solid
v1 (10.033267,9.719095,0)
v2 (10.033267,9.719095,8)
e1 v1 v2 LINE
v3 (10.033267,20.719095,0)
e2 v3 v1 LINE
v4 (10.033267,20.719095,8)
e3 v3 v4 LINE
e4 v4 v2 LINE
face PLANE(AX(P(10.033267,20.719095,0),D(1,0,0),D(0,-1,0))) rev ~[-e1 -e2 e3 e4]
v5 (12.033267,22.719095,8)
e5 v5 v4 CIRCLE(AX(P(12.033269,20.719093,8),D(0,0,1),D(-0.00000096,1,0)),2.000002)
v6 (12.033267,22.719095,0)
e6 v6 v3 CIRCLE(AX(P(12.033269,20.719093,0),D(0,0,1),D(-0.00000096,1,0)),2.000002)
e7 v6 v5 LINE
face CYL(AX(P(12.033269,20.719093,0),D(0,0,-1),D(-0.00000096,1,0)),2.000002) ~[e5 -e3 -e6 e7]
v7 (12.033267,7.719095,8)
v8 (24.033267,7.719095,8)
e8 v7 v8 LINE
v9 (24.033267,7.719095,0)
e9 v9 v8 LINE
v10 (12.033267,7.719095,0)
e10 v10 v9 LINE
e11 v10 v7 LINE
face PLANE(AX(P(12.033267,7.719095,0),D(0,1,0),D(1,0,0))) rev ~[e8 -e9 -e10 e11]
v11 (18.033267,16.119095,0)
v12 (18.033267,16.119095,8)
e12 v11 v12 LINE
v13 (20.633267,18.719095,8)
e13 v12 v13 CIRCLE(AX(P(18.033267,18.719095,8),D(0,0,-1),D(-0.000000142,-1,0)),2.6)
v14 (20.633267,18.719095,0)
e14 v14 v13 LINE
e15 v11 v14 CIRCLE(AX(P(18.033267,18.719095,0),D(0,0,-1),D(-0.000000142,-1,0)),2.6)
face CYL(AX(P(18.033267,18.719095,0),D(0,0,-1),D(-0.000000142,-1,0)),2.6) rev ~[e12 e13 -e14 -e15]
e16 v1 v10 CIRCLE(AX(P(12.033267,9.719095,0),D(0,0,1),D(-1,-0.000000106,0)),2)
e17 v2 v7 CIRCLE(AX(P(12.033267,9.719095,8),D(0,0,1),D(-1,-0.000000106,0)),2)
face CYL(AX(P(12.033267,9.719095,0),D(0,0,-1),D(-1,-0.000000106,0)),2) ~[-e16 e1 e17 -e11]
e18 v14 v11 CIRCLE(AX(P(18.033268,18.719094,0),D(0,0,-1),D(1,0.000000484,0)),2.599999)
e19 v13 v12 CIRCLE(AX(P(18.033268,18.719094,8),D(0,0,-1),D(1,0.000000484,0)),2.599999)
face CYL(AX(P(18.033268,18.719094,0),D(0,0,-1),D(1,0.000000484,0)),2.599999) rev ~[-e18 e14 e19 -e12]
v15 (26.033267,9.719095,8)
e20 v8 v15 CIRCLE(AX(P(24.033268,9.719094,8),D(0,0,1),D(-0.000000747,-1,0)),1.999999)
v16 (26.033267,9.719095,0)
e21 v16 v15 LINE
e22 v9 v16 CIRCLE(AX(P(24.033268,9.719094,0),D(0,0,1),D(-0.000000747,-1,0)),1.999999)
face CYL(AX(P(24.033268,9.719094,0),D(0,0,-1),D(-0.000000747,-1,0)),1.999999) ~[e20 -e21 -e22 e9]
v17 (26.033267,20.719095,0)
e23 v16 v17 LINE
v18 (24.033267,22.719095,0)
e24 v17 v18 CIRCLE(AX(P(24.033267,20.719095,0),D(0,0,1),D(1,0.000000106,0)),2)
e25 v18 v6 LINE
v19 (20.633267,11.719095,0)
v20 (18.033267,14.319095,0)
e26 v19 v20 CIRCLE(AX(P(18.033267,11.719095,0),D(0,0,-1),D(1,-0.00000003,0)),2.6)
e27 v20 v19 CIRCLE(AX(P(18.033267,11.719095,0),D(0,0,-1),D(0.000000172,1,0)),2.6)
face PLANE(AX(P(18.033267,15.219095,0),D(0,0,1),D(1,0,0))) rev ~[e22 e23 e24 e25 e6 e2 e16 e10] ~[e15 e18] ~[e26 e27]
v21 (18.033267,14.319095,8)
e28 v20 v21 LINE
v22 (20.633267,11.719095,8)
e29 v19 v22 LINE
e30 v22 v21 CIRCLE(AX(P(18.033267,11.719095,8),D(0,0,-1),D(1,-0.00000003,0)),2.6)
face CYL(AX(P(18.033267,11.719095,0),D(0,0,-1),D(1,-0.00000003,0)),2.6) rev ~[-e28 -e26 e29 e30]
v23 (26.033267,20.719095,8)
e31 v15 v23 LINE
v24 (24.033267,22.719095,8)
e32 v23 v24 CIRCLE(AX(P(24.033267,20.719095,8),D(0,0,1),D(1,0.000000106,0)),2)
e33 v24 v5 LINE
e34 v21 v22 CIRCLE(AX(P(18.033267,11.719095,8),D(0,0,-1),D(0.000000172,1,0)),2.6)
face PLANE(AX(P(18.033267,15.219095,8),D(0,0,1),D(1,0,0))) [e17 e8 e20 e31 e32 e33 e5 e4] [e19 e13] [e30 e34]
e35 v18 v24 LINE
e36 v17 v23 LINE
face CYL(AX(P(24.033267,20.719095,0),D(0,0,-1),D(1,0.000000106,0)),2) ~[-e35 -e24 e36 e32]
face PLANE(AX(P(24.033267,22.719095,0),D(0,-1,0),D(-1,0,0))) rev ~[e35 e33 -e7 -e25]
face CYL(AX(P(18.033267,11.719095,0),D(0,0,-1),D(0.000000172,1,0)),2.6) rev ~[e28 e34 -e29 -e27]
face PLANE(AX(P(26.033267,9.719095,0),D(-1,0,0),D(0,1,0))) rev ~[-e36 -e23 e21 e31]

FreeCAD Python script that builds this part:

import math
import FreeCAD as App
import Part
import Sketcher

doc = App.newDocument("Part")
params = doc.addObject("Spreadsheet::Sheet", "Params")
for row, (alias, value) in enumerate([
    ("sketch1_radius", "2.000002 mm"),
    ("sketch1_radius2", "2.6 mm"),
    ("sketch1_width", "12 mm"),
    ("sketch1_height", "11 mm"),
    ("pad1_length", "8 mm"),
], start=1):
    params.set(f"A{row}", alias)
    params.set(f"B{row}", "=" + value)
    params.setAlias(f"B{row}", alias)

body = doc.addObject("PartDesign::Body", "Body")

sketch1 = body.newObject("Sketcher::SketchObject", "Sketch")
sketch1.AttachmentSupport = (doc.getObject("XY_Plane"), [""])
sketch1.MapMode = "FlatFace"
sketch1.addGeometry([
    Part.LineSegment(App.Vector(24, 22.7, 0), App.Vector(12, 22.7, 0)),
    Part.ArcOfCircle(Part.Circle(App.Vector(12, 20.7, 0), App.Vector(0, 0, 1), 2), math.radians(90), math.radians(180)),
    Part.LineSegment(App.Vector(10, 20.7, 0), App.Vector(10, 9.7, 0)),
    Part.ArcOfCircle(Part.Circle(App.Vector(12, 9.7, 0), App.Vector(0, 0, 1), 2), math.radians(-180), math.radians(-90)),
    Part.LineSegment(App.Vector(12, 7.7, 0), App.Vector(24, 7.7, 0)),
    Part.ArcOfCircle(Part.Circle(App.Vector(24, 9.7, 0), App.Vector(0, 0, 1), 2), math.radians(-90), math.radians(0)),
    Part.LineSegment(App.Vector(26, 9.7, 0), App.Vector(26, 20.7, 0)),
    Part.ArcOfCircle(Part.Circle(App.Vector(24, 20.7, 0), App.Vector(0, 0, 1), 2), math.radians(0), math.radians(90)),
    Part.ArcOfCircle(Part.Circle(App.Vector(18, 11.7, 0), App.Vector(0, 0, 1), 2.6), math.radians(0), math.radians(90)),
    Part.ArcOfCircle(Part.Circle(App.Vector(18, 11.7, 0), App.Vector(0, 0, 1), 2.6), math.radians(90), math.radians(360)),
    Part.ArcOfCircle(Part.Circle(App.Vector(18, 18.7, 0), App.Vector(0, 0, 1), 2.6), math.radians(-90), math.radians(0)),
    Part.ArcOfCircle(Part.Circle(App.Vector(18, 18.7, 0), App.Vector(0, 0, 1), 2.6), math.radians(0), math.radians(270)),
], False)
sketch1.addConstraint([
    Sketcher.Constraint("Tangent", 0, 2, 1, 1),
    Sketcher.Constraint("Tangent", 1, 2, 2, 1),
    Sketcher.Constraint("Tangent", 2, 2, 3, 1),
    Sketcher.Constraint("Tangent", 3, 2, 4, 1),
    Sketcher.Constraint("Tangent", 4, 2, 5, 1),
    Sketcher.Constraint("Tangent", 5, 2, 6, 1),
    Sketcher.Constraint("Tangent", 6, 2, 7, 1),
    Sketcher.Constraint("Tangent", 7, 2, 0, 1),
    Sketcher.Constraint("Tangent", 8, 1, 9, 2),
    Sketcher.Constraint("Coincident", 9, 1, 8, 2),
    Sketcher.Constraint("Tangent", 10, 1, 11, 2),
    Sketcher.Constraint("Coincident", 11, 1, 10, 2),
    Sketcher.Constraint("Horizontal", 0),
    Sketcher.Constraint("Vertical", 2),
    Sketcher.Constraint("Horizontal", 4),
    Sketcher.Constraint("Vertical", 6),
    Sketcher.Constraint("Equal", 1, 3),
    Sketcher.Constraint("Equal", 3, 5),
    Sketcher.Constraint("Equal", 5, 7),
    Sketcher.Constraint("Equal", 9, 10),
    Sketcher.Constraint("Horizontal", 9, 3, 8, 1),
    Sketcher.Constraint("Horizontal", 10, 3, 11, 1),
    Sketcher.Constraint("Vertical", 9, 3, 10, 3),
    Sketcher.Constraint("Vertical", 11, 3, 9, 1),
    Sketcher.Constraint("Vertical", 9, 1, 10, 1),
    Sketcher.Constraint("Radius", 1, 2.000002),
    Sketcher.Constraint("Radius", 8, 2.6),
    Sketcher.Constraint("DistanceX", 0, 2, 0, 1, 12.0),
    Sketcher.Constraint("DistanceY", 2, 2, 2, 1, 11.0),
    Sketcher.Constraint("DistanceX", 3, 3, 8, 3, 5.999999),
    Sketcher.Constraint("DistanceY", 3, 3, 8, 3, 1.999999),
    Sketcher.Constraint("DistanceY", 10, 3, 7, 3, 2.000001),
    Sketcher.Constraint("DistanceX", -1, 1, 1, 3, 12.033269),
    Sketcher.Constraint("DistanceY", -1, 1, 1, 3, 20.719093),
])
sketch1.setExpression("Constraints[25]", "Params.sketch1_radius")
sketch1.setExpression("Constraints[26]", "Params.sketch1_radius2")
sketch1.setExpression("Constraints[27]", "Params.sketch1_width")
sketch1.setExpression("Constraints[28]", "Params.sketch1_height")
pad1 = body.newObject("PartDesign::Pad", "Pad")
pad1.Profile = sketch1
pad1.setExpression("Length", "Params.pad1_length")

doc.recompute()
